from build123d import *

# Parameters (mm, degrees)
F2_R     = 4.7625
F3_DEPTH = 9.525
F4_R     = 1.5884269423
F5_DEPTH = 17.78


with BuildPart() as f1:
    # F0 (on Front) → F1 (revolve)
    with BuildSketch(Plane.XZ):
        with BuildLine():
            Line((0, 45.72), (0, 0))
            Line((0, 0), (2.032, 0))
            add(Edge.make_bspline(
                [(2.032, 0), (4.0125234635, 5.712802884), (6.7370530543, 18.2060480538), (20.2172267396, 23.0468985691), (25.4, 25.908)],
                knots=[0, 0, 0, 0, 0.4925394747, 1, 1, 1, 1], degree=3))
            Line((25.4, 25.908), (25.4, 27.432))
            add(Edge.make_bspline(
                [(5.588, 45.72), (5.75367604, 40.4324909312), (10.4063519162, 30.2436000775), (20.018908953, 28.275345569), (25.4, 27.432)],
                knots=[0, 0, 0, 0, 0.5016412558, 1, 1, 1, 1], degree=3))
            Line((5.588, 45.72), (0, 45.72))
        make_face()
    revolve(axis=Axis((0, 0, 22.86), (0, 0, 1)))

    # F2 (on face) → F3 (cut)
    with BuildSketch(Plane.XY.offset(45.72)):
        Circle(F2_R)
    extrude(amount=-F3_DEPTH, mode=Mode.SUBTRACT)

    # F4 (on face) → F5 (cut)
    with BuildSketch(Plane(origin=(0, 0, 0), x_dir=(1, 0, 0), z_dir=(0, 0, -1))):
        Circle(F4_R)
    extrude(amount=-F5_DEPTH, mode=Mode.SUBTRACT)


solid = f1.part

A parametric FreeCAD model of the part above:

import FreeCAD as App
import Part
import Sketcher
from FreeCAD import Vector
Q = App.Units.Quantity

doc = App.newDocument("Part")
body = doc.addObject("PartDesign::Body", "Body")

# Sketch on XZ plane
sketch1 = body.newObject("Sketcher::SketchObject", "Sketch")
sketch1.AttachmentSupport = (doc.getObject("XZ_Plane"), [""])
sketch1.MapMode = "FlatFace"
sketch1.addGeometry([
    Part.LineSegment(Vector(0, 45.72, 0), Vector(0, 0, 0)),  # 0
    Part.LineSegment(Vector(0, 0, 0), Vector(2.032, 0, 0)),  # 1
    Part.BSplineCurve([Vector(2.032, 0, 0), Vector(4.012523, 5.712803, 0), Vector(6.737053, 18.206048, 0), Vector(20.217227, 23.046899, 0), Vector(25.4, 25.908, 0)], [4, 1, 4], [0, 0.492539475, 1], False, 3, [1, 1, 1, 1, 1], False),  # 2
    Part.LineSegment(Vector(25.4, 25.908, 0), Vector(25.4, 27.432, 0)),  # 3
    Part.BSplineCurve([Vector(5.588, 45.72, 0), Vector(5.753676, 40.432491, 0), Vector(10.406352, 30.2436, 0), Vector(20.018909, 28.275346, 0), Vector(25.4, 27.432, 0)], [4, 1, 4], [0, 0.501641256, 1], False, 3, [1, 1, 1, 1, 1], False),  # 4
    Part.LineSegment(Vector(5.588, 45.72, 0), Vector(0, 45.72, 0)),  # 5
], False)
sketch1.addConstraint([
    Sketcher.Constraint("Block", 2),
    Sketcher.Constraint("Block", 4),
    Sketcher.Constraint("Coincident", 0, 2, 1, 1),
    Sketcher.Constraint("Coincident", 1, 2, 2, 1),
    Sketcher.Constraint("Coincident", 2, 2, 3, 1),
    Sketcher.Constraint("Coincident", 3, 2, 4, 2),
    Sketcher.Constraint("Coincident", 4, 1, 5, 1),
    Sketcher.Constraint("Coincident", 5, 2, 0, 1),
    Sketcher.Constraint("Vertical", 0),
    Sketcher.Constraint("Horizontal", 1),
    Sketcher.Constraint("Horizontal", 5),
    Sketcher.Constraint("PointOnObject", 5, 2, -2),
])
revolution = body.newObject("PartDesign::Revolution", "Revolution")
revolution.Profile = sketch1
revolution.ReferenceAxis = (sketch1, ["V_Axis"])
revolution.Angle = 360

# Sketch on XY plane
sketch2 = body.newObject("Sketcher::SketchObject", "Sketch001")
sketch2.AttachmentSupport = (doc.getObject("XY_Plane"), [""])
sketch2.MapMode = "FlatFace"
sketch2.AttachmentOffset = App.Placement(Vector(0, 0, 1.8 * 25.4), App.Rotation())
sketch2.addGeometry(Part.Circle(Vector(0, 0, 0), Vector(0, 0, 1), 4.8), False)
sketch2.addConstraint([
    Sketcher.Constraint("Coincident", 0, 3, -1, 1),
    Sketcher.Constraint("Diameter", 0, Q("0.375 in")),
])
pocket1 = body.newObject("PartDesign::Pocket", "Pocket")
pocket1.Profile = sketch2
pocket1.Length = Q("0.375 in")

# Sketch on XY plane
sketch3 = body.newObject("Sketcher::SketchObject", "Sketch002")
sketch3.AttachmentSupport = (doc.getObject("XY_Plane"), [""])
sketch3.MapMode = "FlatFace"
sketch3.addGeometry(Part.Circle(Vector(0, 0, 0), Vector(0, 0, 1), 1.6), False)
sketch3.addConstraint([
    Sketcher.Constraint("Coincident", 0, 3, -1, 1),
    Sketcher.Constraint("Diameter", 0, Q("3.176854 mm")),
])
pocket2 = body.newObject("PartDesign::Pocket", "Pocket001")
pocket2.Profile = sketch3
pocket2.Length = Q("0.7 in")
pocket2.Reversed = True

doc.recompute()
